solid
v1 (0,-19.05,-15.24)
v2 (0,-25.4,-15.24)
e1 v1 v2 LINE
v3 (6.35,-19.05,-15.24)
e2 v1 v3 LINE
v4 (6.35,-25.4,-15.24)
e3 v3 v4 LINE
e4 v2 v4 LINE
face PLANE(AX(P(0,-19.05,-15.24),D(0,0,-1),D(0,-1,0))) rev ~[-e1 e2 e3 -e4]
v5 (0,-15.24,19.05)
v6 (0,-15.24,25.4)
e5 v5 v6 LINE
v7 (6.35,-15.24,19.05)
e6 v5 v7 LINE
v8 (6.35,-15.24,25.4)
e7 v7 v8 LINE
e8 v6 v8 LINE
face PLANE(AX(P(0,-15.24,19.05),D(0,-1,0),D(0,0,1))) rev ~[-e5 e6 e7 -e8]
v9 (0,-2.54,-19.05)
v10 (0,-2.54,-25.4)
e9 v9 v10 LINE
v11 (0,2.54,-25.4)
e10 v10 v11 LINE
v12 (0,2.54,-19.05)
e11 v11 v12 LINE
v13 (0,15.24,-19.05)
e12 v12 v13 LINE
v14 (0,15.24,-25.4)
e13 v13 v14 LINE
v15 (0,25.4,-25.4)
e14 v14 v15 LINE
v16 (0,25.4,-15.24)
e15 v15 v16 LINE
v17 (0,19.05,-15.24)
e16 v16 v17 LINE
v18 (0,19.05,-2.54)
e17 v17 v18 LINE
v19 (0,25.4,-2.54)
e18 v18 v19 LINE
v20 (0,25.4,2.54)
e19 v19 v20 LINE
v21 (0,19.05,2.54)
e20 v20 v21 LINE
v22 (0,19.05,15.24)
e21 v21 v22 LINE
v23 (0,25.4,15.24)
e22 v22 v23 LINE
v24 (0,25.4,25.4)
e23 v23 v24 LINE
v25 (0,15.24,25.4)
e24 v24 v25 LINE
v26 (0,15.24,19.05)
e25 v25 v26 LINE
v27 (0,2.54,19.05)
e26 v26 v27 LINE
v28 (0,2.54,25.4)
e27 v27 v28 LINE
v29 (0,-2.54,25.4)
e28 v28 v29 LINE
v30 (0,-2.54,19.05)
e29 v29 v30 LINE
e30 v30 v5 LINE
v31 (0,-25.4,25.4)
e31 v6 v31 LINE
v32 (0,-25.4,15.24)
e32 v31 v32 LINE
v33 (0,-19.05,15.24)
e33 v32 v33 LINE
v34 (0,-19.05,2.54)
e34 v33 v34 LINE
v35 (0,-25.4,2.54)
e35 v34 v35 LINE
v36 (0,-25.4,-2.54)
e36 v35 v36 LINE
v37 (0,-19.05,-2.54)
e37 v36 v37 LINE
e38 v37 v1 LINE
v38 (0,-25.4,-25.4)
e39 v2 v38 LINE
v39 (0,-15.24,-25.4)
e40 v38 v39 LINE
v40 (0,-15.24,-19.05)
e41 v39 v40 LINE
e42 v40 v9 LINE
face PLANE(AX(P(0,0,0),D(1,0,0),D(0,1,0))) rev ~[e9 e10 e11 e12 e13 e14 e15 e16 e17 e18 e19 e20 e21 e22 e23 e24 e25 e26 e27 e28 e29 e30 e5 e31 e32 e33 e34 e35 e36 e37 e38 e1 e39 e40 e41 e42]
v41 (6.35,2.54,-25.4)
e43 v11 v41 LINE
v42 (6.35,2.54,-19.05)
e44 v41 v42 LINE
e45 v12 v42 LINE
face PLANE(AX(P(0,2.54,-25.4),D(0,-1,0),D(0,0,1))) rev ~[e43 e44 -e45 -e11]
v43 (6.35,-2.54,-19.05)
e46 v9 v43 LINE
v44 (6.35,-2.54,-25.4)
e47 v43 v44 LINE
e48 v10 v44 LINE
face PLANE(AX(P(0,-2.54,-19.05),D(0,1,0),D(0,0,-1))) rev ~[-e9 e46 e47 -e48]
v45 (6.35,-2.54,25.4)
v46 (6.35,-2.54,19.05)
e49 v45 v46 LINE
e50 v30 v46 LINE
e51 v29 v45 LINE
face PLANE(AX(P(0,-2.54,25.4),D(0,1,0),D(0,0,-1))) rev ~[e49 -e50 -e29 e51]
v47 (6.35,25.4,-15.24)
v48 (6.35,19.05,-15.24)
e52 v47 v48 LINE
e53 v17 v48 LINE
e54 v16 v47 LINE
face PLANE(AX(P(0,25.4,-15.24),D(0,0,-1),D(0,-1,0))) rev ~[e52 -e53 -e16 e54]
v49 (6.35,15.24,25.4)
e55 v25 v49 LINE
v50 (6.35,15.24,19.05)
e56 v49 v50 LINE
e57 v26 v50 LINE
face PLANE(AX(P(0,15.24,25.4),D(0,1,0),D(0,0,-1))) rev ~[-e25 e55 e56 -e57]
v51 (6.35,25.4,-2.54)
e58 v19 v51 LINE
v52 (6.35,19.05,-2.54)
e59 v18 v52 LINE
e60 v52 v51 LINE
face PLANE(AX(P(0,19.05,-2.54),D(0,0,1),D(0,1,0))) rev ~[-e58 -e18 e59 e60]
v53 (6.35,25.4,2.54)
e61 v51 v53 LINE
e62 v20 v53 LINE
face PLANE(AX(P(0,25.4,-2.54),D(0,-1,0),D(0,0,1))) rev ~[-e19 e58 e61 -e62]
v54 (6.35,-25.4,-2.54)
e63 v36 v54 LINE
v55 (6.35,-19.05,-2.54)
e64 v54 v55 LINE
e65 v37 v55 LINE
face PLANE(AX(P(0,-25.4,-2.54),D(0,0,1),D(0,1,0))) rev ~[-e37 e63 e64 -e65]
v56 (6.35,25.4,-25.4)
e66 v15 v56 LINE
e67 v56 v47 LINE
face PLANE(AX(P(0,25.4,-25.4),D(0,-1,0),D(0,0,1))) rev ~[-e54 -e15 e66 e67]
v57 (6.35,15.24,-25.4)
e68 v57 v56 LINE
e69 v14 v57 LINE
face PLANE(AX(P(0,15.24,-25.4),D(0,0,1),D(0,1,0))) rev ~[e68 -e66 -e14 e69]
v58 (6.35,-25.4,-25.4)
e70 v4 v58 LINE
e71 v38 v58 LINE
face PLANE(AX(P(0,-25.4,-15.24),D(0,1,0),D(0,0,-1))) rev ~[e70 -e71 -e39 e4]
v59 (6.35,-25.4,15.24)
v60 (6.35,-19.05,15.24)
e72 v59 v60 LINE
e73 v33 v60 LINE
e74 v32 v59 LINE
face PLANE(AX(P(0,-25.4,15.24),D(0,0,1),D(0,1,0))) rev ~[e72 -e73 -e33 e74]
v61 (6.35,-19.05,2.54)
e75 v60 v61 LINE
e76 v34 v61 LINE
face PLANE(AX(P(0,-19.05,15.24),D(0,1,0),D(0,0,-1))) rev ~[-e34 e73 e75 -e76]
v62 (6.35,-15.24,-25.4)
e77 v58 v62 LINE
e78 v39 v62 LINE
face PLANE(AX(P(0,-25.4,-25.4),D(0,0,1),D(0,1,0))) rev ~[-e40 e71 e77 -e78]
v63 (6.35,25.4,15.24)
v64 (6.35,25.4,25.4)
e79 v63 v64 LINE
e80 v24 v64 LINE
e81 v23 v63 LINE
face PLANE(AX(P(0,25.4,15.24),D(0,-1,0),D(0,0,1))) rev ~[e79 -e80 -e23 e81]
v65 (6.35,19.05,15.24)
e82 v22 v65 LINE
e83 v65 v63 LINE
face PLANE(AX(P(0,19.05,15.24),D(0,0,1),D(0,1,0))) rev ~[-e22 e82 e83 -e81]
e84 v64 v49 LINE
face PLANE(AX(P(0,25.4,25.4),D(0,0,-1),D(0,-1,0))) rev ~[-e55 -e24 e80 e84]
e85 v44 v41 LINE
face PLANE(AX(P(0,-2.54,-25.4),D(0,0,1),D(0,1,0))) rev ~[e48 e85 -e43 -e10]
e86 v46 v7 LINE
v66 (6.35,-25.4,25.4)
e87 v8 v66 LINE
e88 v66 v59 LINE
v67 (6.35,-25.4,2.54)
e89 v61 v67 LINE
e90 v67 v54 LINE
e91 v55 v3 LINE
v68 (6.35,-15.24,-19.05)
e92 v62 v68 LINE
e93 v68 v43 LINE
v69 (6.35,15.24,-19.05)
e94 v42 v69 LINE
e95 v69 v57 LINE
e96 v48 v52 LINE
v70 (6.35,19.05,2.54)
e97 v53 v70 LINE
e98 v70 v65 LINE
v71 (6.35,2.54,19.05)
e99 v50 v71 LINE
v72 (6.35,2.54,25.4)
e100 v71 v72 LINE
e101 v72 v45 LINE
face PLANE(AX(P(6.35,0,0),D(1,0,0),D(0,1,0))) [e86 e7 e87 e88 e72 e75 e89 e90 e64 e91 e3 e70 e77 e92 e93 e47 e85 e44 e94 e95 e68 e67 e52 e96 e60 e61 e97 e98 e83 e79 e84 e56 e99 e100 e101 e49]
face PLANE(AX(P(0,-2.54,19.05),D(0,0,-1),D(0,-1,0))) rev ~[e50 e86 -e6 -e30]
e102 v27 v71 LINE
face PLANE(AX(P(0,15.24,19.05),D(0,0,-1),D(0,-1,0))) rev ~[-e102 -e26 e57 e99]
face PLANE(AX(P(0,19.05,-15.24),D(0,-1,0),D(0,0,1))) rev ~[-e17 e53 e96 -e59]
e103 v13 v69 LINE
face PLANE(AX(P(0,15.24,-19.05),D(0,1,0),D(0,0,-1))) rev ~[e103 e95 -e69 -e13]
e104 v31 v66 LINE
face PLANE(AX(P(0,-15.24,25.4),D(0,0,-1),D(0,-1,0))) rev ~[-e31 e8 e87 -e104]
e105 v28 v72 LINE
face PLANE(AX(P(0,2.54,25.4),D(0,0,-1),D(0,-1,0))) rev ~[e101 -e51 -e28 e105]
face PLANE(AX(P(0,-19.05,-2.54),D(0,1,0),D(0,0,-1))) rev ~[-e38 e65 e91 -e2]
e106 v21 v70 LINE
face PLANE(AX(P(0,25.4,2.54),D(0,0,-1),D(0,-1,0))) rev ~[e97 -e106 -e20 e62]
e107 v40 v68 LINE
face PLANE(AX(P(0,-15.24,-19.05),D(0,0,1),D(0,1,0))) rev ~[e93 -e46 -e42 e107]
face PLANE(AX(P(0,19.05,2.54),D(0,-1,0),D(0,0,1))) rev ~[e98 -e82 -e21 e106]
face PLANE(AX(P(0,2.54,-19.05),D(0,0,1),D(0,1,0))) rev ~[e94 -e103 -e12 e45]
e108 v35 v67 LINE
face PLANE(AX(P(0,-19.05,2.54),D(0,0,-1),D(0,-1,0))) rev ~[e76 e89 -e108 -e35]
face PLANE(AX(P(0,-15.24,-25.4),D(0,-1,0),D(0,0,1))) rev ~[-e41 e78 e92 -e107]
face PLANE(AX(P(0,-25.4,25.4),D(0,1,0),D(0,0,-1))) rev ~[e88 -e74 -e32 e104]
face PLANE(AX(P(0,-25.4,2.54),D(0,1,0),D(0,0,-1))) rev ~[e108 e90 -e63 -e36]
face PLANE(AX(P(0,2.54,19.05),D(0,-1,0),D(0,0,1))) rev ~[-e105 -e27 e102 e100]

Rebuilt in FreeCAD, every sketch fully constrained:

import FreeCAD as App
import Part
import Sketcher
from FreeCAD import Vector
Q = App.Units.Quantity

doc = App.newDocument("Part")
params = doc.addObject("Spreadsheet::Sheet", "Params")
for row, (alias, value) in enumerate([
    ("sketch1_width", "0.5 in"),
    ("sketch1_width2", "0.4 in"),
    ("sketch1_width3", "0.2 in"),
    ("sketch1_width4", "0.25 in"),
    ("pad1_length", "0.25 in"),
], start=1):
    params.set(f"A{row}", alias)
    params.set(f"B{row}", "=" + value)
    params.setAlias(f"B{row}", alias)

body = doc.addObject("PartDesign::Body", "Body")

sketch1 = body.newObject("Sketcher::SketchObject", "Sketch")
sketch1.AttachmentSupport = (doc.getObject("YZ_Plane"), [""])
sketch1.MapMode = "FlatFace"
sketch1.addGeometry([
    Part.LineSegment(Vector(-3, 19, 0), Vector(-15, 19, 0)),
    Part.LineSegment(Vector(-15, 19, 0), Vector(-15, 25, 0)),
    Part.LineSegment(Vector(-15, 25, 0), Vector(-25, 25, 0)),
    Part.LineSegment(Vector(-25, 25, 0), Vector(-25, 15, 0)),
    Part.LineSegment(Vector(-25, 15, 0), Vector(-19, 15, 0)),
    Part.LineSegment(Vector(-19, 15, 0), Vector(-19, 3, 0)),
    Part.LineSegment(Vector(-19, 3, 0), Vector(-25, 3, 0)),
    Part.LineSegment(Vector(-25, 3, 0), Vector(-25, -3, 0)),
    Part.LineSegment(Vector(-25, -3, 0), Vector(-19, -3, 0)),
    Part.LineSegment(Vector(-19, -3, 0), Vector(-19, -15, 0)),
    Part.LineSegment(Vector(-19, -15, 0), Vector(-25, -15, 0)),
    Part.LineSegment(Vector(-25, -15, 0), Vector(-25, -25, 0)),
    Part.LineSegment(Vector(-25, -25, 0), Vector(-15, -25, 0)),
    Part.LineSegment(Vector(-15, -25, 0), Vector(-15, -19, 0)),
    Part.LineSegment(Vector(-15, -19, 0), Vector(-3, -19, 0)),
    Part.LineSegment(Vector(-3, -19, 0), Vector(-3, -25, 0)),
    Part.LineSegment(Vector(-3, -25, 0), Vector(3, -25, 0)),
    Part.LineSegment(Vector(3, -25, 0), Vector(3, -19, 0)),
    Part.LineSegment(Vector(3, -19, 0), Vector(15, -19, 0)),
    Part.LineSegment(Vector(15, -19, 0), Vector(15, -25, 0)),
    Part.LineSegment(Vector(15, -25, 0), Vector(25, -25, 0)),
    Part.LineSegment(Vector(25, -25, 0), Vector(25, -15, 0)),
    Part.LineSegment(Vector(25, -15, 0), Vector(19, -15, 0)),
    Part.LineSegment(Vector(19, -15, 0), Vector(19, -3, 0)),
    Part.LineSegment(Vector(19, -3, 0), Vector(25, -3, 0)),
    Part.LineSegment(Vector(25, -3, 0), Vector(25, 3, 0)),
    Part.LineSegment(Vector(25, 3, 0), Vector(19, 3, 0)),
    Part.LineSegment(Vector(19, 3, 0), Vector(19, 15, 0)),
    Part.LineSegment(Vector(19, 15, 0), Vector(25, 15, 0)),
    Part.LineSegment(Vector(25, 15, 0), Vector(25, 25, 0)),
    Part.LineSegment(Vector(25, 25, 0), Vector(15, 25, 0)),
    Part.LineSegment(Vector(15, 25, 0), Vector(15, 19, 0)),
    Part.LineSegment(Vector(15, 19, 0), Vector(3, 19, 0)),
    Part.LineSegment(Vector(3, 19, 0), Vector(3, 25, 0)),
    Part.LineSegment(Vector(3, 25, 0), Vector(-3, 25, 0)),
    Part.LineSegment(Vector(-3, 25, 0), Vector(-3, 19, 0)),
], False)
sketch1.addConstraint([
    Sketcher.Constraint("Coincident", 0, 2, 1, 1),
    Sketcher.Constraint("Coincident", 1, 2, 2, 1),
    Sketcher.Constraint("Coincident", 2, 2, 3, 1),
    Sketcher.Constraint("Coincident", 3, 2, 4, 1),
    Sketcher.Constraint("Coincident", 4, 2, 5, 1),
    Sketcher.Constraint("Coincident", 5, 2, 6, 1),
    Sketcher.Constraint("Coincident", 6, 2, 7, 1),
    Sketcher.Constraint("Coincident", 7, 2, 8, 1),
    Sketcher.Constraint("Coincident", 8, 2, 9, 1),
    Sketcher.Constraint("Coincident", 9, 2, 10, 1),
    Sketcher.Constraint("Coincident", 10, 2, 11, 1),
    Sketcher.Constraint("Coincident", 11, 2, 12, 1),
    Sketcher.Constraint("Coincident", 12, 2, 13, 1),
    Sketcher.Constraint("Coincident", 13, 2, 14, 1),
    Sketcher.Constraint("Coincident", 14, 2, 15, 1),
    Sketcher.Constraint("Coincident", 15, 2, 16, 1),
    Sketcher.Constraint("Coincident", 16, 2, 17, 1),
    Sketcher.Constraint("Coincident", 17, 2, 18, 1),
    Sketcher.Constraint("Coincident", 18, 2, 19, 1),
    Sketcher.Constraint("Coincident", 19, 2, 20, 1),
    Sketcher.Constraint("Coincident", 20, 2, 21, 1),
    Sketcher.Constraint("Coincident", 21, 2, 22, 1),
    Sketcher.Constraint("Coincident", 22, 2, 23, 1),
    Sketcher.Constraint("Coincident", 23, 2, 24, 1),
    Sketcher.Constraint("Coincident", 24, 2, 25, 1),
    Sketcher.Constraint("Coincident", 25, 2, 26, 1),
    Sketcher.Constraint("Coincident", 26, 2, 27, 1),
    Sketcher.Constraint("Coincident", 27, 2, 28, 1),
    Sketcher.Constraint("Coincident", 28, 2, 29, 1),
    Sketcher.Constraint("Coincident", 29, 2, 30, 1),
    Sketcher.Constraint("Coincident", 30, 2, 31, 1),
    Sketcher.Constraint("Coincident", 31, 2, 32, 1),
    Sketcher.Constraint("Coincident", 32, 2, 33, 1),
    Sketcher.Constraint("Coincident", 33, 2, 34, 1),
    Sketcher.Constraint("Coincident", 34, 2, 35, 1),
    Sketcher.Constraint("Coincident", 35, 2, 0, 1),
    Sketcher.Constraint("Horizontal", 0),
    Sketcher.Constraint("Vertical", 1),
    Sketcher.Constraint("Horizontal", 2),
    Sketcher.Constraint("Vertical", 3),
    Sketcher.Constraint("Horizontal", 4),
    Sketcher.Constraint("Vertical", 5),
    Sketcher.Constraint("Horizontal", 6),
    Sketcher.Constraint("Vertical", 7),
    Sketcher.Constraint("Horizontal", 8),
    Sketcher.Constraint("Vertical", 9),
    Sketcher.Constraint("Horizontal", 10),
    Sketcher.Constraint("Vertical", 11),
    Sketcher.Constraint("Horizontal", 12),
    Sketcher.Constraint("Vertical", 13),
    Sketcher.Constraint("Horizontal", 14),
    Sketcher.Constraint("Vertical", 15),
    Sketcher.Constraint("Horizontal", 16),
    Sketcher.Constraint("Vertical", 17),
    Sketcher.Constraint("Horizontal", 18),
    Sketcher.Constraint("Vertical", 19),
    Sketcher.Constraint("Horizontal", 20),
    Sketcher.Constraint("Vertical", 21),
    Sketcher.Constraint("Horizontal", 22),
    Sketcher.Constraint("Vertical", 23),
    Sketcher.Constraint("Horizontal", 24),
    Sketcher.Constraint("Vertical", 25),
    Sketcher.Constraint("Horizontal", 26),
    Sketcher.Constraint("Vertical", 27),
    Sketcher.Constraint("Horizontal", 28),
    Sketcher.Constraint("Vertical", 29),
    Sketcher.Constraint("Horizontal", 30),
    Sketcher.Constraint("Vertical", 31),
    Sketcher.Constraint("Horizontal", 32),
    Sketcher.Constraint("Vertical", 33),
    Sketcher.Constraint("Horizontal", 34),
    Sketcher.Constraint("Vertical", 35),
    Sketcher.Constraint("Symmetric", 0, 2, 18, 2, -1, 1),
    Sketcher.Constraint("Symmetric", 2, 2, 20, 2, -1, 1),
    Sketcher.Constraint("Symmetric", 4, 2, 22, 2, -1, 1),
    Sketcher.Constraint("Symmetric", 6, 2, 24, 2, -1, 1),
    Sketcher.Constraint("Symmetric", 8, 2, 26, 2, -1, 1),
    Sketcher.Constraint("Symmetric", 10, 2, 28, 2, -1, 1),
    Sketcher.Constraint("Symmetric", 12, 2, 30, 2, -1, 1),
    Sketcher.Constraint("Symmetric", 14, 2, 32, 2, -1, 1),
    Sketcher.Constraint("Symmetric", 16, 2, 34, 2, -1, 1),
    Sketcher.Constraint("Symmetric", 14, 2, 17, 2, -2),
    Sketcher.Constraint("Symmetric", 12, 2, 19, 2, -2),
    Sketcher.Constraint("Symmetric", 10, 2, 21, 2, -2),
    Sketcher.Constraint("Symmetric", 8, 2, 23, 2, -2),
    Sketcher.Constraint("Horizontal", 12, 2, 15, 2),
    Sketcher.Constraint("Vertical", 3, 2, 6, 2),
    Sketcher.Constraint("Equal", 28, 1),
    Sketcher.Constraint("Equal", 30, 3),
    Sketcher.Constraint("Equal", 32, 5),
    Sketcher.Constraint("Equal", 34, 7),
    Sketcher.Constraint("DistanceX", 0, 2, 0, 1, Q("0.5 in")),
    Sketcher.Constraint("DistanceX", 2, 2, 2, 1, Q("0.4 in")),
    Sketcher.Constraint("DistanceX", 16, 1, 16, 2, Q("0.2 in")),
    Sketcher.Constraint("DistanceX", 4, 1, 4, 2, Q("0.25 in")),
])
sketch1.setExpression("Constraints[91]", "Params.sketch1_width")
sketch1.setExpression("Constraints[92]", "Params.sketch1_width2")
sketch1.setExpression("Constraints[93]", "Params.sketch1_width3")
sketch1.setExpression("Constraints[94]", "Params.sketch1_width4")
pad1 = body.newObject("PartDesign::Pad", "Pad")
pad1.Profile = sketch1
pad1.setExpression("Length", "Params.pad1_length")

doc.recompute()
